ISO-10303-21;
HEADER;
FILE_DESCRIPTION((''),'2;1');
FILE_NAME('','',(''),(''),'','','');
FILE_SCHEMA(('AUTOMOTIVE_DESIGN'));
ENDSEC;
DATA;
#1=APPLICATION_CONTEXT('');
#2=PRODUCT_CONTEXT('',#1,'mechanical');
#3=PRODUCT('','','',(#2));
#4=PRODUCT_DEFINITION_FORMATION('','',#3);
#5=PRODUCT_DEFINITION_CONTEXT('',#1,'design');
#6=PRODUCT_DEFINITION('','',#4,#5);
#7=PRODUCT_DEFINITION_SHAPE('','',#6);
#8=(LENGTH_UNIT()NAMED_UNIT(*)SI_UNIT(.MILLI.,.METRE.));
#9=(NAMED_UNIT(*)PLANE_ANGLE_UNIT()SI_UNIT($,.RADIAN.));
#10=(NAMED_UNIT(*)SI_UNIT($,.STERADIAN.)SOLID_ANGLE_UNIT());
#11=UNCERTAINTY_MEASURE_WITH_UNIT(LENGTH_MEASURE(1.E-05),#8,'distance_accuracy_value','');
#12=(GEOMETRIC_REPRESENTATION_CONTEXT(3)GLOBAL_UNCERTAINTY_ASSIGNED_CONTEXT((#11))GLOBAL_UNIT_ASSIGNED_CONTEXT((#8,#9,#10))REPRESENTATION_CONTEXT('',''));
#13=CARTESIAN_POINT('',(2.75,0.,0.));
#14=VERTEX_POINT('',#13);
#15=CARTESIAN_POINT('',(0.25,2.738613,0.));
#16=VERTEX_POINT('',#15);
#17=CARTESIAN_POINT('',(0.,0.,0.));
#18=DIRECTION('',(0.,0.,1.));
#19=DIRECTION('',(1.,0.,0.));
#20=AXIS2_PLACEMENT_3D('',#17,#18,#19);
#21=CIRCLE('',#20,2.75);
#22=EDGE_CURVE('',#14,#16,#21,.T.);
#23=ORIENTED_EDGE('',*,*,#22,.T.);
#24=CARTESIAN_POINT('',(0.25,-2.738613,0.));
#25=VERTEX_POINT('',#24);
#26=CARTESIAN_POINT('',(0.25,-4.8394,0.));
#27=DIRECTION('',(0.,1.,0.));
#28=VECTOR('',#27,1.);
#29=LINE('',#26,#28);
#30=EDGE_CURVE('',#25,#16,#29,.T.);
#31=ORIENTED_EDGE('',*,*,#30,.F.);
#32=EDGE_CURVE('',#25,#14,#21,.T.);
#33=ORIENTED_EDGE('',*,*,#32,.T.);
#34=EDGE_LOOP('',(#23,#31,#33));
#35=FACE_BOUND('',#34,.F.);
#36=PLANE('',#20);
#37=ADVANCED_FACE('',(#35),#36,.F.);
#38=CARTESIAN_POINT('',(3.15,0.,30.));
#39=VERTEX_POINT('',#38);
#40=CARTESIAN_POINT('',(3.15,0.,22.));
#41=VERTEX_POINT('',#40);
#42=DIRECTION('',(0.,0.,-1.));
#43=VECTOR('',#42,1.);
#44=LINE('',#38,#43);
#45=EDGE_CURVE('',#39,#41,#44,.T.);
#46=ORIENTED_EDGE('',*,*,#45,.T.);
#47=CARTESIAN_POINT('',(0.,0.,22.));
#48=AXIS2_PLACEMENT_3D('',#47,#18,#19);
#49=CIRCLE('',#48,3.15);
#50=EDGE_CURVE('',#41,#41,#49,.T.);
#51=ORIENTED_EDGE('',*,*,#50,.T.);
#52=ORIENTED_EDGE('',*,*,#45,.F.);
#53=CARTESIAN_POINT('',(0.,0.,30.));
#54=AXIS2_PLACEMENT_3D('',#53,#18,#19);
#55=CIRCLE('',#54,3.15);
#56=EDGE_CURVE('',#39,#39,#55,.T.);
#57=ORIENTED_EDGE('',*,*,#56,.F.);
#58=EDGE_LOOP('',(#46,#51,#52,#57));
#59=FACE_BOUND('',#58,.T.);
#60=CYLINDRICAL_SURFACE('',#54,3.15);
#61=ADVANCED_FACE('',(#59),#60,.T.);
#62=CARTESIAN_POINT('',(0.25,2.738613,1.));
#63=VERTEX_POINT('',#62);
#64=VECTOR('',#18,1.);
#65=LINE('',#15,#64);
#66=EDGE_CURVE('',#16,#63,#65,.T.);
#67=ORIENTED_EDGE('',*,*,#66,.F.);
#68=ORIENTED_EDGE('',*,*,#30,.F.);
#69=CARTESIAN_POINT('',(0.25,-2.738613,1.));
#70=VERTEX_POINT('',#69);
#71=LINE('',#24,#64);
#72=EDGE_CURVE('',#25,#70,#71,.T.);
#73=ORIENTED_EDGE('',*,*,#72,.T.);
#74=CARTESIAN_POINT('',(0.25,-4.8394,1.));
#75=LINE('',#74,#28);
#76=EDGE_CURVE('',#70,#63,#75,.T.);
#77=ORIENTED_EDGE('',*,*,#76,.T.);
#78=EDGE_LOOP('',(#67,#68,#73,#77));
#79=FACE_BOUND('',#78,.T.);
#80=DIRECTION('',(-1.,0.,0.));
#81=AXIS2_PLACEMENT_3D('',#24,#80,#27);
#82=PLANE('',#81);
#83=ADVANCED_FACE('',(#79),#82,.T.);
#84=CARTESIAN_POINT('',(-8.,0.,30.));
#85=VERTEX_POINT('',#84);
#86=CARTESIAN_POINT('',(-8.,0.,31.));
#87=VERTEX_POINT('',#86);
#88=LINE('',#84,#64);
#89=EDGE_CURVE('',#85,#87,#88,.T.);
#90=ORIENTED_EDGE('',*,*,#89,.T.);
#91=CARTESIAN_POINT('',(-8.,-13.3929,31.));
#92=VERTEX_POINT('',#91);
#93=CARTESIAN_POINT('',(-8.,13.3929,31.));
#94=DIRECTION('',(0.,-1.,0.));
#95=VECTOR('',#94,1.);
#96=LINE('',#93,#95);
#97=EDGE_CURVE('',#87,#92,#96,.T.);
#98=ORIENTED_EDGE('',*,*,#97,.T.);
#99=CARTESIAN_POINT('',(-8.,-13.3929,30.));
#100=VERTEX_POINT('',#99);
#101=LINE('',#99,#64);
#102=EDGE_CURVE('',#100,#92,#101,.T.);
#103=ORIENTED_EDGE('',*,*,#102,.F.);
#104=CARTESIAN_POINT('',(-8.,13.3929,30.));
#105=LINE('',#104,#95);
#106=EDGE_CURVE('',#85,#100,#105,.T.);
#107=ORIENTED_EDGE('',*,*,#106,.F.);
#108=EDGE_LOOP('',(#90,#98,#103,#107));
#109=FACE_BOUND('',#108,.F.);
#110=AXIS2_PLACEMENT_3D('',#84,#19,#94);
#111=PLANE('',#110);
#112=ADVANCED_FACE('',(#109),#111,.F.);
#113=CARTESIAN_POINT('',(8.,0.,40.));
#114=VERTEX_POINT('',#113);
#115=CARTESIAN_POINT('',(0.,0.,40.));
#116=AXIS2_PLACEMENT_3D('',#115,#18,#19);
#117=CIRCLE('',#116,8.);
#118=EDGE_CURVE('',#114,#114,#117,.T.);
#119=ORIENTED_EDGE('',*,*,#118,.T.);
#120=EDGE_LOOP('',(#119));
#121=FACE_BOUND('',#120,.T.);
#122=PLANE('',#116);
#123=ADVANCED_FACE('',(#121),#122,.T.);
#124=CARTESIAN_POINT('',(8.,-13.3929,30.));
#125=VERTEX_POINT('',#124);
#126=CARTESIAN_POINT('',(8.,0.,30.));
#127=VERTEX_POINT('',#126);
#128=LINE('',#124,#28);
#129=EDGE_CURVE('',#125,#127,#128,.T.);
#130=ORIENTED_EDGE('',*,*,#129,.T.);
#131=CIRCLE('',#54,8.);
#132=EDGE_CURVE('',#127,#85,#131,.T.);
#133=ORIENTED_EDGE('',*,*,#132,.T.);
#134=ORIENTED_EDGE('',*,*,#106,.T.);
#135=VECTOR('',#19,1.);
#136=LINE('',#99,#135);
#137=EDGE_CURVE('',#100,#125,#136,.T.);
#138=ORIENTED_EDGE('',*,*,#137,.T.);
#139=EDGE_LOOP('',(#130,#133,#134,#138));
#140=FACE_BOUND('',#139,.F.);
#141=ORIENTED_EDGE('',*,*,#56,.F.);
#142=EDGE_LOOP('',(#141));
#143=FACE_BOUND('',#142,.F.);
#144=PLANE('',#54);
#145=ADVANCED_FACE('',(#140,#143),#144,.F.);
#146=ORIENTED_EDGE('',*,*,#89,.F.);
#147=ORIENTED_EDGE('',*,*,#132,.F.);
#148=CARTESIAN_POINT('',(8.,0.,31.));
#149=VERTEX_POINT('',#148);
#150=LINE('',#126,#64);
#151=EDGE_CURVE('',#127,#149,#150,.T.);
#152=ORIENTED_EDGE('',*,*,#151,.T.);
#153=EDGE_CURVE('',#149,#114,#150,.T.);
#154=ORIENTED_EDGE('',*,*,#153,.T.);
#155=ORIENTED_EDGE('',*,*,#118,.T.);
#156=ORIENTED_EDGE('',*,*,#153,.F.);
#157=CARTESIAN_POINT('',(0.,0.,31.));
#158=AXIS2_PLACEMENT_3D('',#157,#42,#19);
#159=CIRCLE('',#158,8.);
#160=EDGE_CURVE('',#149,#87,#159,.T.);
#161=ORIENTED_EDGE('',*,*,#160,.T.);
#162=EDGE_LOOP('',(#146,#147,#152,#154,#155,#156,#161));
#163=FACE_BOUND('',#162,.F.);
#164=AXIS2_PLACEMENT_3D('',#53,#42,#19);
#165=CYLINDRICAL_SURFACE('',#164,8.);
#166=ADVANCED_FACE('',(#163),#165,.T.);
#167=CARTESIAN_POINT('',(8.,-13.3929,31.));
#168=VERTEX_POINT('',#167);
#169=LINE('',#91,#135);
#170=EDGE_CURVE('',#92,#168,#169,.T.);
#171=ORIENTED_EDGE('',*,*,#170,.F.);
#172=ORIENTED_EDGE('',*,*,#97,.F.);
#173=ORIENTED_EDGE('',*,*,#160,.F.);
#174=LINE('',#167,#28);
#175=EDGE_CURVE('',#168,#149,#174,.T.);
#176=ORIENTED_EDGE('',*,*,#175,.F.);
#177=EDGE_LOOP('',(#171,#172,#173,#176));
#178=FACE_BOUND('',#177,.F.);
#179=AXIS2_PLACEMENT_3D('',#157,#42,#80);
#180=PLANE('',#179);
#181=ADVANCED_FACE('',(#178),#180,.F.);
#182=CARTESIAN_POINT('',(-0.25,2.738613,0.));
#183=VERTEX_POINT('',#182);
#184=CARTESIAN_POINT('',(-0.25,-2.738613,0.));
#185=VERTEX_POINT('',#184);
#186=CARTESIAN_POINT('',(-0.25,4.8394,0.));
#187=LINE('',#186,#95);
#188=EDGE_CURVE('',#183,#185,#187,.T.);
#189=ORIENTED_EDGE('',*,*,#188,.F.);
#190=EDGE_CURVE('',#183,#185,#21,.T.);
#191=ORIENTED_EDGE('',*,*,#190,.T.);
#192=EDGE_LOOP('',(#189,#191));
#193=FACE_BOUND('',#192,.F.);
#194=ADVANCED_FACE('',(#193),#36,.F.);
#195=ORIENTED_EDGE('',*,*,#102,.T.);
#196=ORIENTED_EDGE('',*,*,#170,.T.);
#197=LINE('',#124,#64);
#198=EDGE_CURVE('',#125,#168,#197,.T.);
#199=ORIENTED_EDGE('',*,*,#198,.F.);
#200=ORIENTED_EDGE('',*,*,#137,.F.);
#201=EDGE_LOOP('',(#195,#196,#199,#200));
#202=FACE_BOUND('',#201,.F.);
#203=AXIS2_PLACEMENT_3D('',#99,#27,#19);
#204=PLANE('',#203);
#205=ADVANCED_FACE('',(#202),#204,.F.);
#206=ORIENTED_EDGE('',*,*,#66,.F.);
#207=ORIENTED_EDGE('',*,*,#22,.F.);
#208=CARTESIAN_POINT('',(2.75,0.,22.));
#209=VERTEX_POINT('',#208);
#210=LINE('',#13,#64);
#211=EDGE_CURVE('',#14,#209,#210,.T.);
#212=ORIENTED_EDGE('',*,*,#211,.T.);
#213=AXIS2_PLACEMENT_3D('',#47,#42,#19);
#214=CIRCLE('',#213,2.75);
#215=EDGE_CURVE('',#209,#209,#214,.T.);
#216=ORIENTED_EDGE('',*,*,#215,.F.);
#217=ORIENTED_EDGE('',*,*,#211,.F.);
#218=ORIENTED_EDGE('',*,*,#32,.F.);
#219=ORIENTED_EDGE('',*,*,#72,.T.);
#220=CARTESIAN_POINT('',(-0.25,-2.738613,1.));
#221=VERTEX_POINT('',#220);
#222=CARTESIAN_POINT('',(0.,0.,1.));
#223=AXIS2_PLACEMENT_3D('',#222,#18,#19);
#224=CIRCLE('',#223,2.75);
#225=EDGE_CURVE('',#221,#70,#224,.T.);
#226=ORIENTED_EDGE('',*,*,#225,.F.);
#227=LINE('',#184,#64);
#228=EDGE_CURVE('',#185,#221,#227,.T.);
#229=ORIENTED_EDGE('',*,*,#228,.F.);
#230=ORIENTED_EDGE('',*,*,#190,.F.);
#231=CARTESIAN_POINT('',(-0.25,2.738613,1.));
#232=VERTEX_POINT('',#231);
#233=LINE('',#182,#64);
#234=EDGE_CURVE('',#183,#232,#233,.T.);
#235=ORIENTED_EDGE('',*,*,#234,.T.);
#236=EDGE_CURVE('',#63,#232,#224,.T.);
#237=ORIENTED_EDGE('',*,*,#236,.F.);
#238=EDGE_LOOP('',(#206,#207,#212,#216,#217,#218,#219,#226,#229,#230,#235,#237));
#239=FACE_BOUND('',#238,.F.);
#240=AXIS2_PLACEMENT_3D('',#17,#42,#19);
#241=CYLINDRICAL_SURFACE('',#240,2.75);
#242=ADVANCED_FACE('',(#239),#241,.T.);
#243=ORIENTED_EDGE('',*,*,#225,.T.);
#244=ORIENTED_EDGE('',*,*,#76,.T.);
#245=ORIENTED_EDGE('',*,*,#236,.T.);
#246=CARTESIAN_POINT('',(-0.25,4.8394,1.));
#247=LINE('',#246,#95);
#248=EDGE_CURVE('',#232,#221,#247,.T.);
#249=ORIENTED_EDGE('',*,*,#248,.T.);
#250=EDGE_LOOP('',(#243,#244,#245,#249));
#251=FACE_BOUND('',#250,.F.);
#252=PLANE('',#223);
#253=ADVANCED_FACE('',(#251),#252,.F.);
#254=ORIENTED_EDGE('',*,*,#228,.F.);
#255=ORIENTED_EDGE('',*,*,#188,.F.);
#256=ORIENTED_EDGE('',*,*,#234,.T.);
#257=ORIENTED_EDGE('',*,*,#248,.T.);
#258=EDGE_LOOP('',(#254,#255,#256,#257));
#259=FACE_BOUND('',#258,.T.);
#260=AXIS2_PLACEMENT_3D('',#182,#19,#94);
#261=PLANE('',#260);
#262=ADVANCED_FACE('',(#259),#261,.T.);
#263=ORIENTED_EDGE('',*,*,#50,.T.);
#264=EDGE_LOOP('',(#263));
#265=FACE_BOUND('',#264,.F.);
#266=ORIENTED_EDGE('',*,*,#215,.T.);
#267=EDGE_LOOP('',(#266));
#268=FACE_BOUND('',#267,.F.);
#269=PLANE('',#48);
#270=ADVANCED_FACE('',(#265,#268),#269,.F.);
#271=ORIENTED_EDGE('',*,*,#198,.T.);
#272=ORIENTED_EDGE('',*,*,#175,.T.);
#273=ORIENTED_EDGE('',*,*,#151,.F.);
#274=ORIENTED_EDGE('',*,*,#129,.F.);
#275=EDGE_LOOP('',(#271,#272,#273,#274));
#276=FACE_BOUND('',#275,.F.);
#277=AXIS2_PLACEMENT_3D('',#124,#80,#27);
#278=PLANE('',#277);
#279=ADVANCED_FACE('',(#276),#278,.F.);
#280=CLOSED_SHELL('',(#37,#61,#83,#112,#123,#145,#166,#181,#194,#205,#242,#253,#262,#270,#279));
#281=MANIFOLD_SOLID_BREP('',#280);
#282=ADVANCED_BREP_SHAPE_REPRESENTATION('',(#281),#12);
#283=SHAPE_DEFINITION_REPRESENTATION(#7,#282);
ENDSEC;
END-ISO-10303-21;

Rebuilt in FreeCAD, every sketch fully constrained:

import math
import FreeCAD as App
import Part
import Sketcher

V = App.Vector


def add_polygon(sketch, points):
    """Adds a closed chain of lines whose ends are joined by coincident constraints."""
    first, n = sketch.GeometryCount, len(points)
    for a, b in zip(points, points[1:] + points[:1]):
        sketch.addGeometry(Part.LineSegment(App.Vector(*a, 0), App.Vector(*b, 0)), False)
    for i in range(n):
        sketch.addConstraint(Sketcher.Constraint("Coincident", first + i, 2, first + (i + 1) % n, 1))

doc = App.newDocument("Part")
body = doc.addObject("PartDesign::Body", "Body")

sketch1 = body.newObject("Sketcher::SketchObject", "Sketch")
sketch1.AttachmentSupport = (doc.getObject("XY_Plane"), [""])
sketch1.MapMode = "FlatFace"
sketch1.addGeometry(Part.Circle(V(0, 0, 0), V(0, 0, 1), 2.75), False)
sketch1.addConstraint(Sketcher.Constraint("Coincident", 0, 3, -1, 1))
sketch1.addConstraint(Sketcher.Constraint("Diameter", 0, 5.5))
pad1 = body.newObject("PartDesign::Pad", "Pad")
pad1.Profile = sketch1
pad1.Length = 30

sketch2 = body.newObject("Sketcher::SketchObject", "Sketch001")
sketch2.AttachmentSupport = (doc.getObject("XY_Plane"), [""])
sketch2.MapMode = "FlatFace"
sketch2.addGeometry(Part.LineSegment(V(0.25, -2.738613, 0), V(0.25, 2.738613, 0)), False)
sketch2.addGeometry(Part.ArcOfCircle(Part.Circle(V(0, 0, 0), V(0, 0, 1), 2.75), math.radians(84.784091), math.radians(95.215909)), False)
sketch2.addGeometry(Part.LineSegment(V(-0.25, 2.738613, 0), V(-0.25, -2.738613, 0)), False)
sketch2.addGeometry(Part.ArcOfCircle(Part.Circle(V(0, 0, 0), V(0, 0, 1), 2.75), math.radians(-95.215909), math.radians(-84.784091)), False)
sketch2.addConstraint(Sketcher.Constraint("Coincident", 0, 2, 1, 1))
sketch2.addConstraint(Sketcher.Constraint("Coincident", 1, 2, 2, 1))
sketch2.addConstraint(Sketcher.Constraint("Coincident", 2, 2, 3, 1))
sketch2.addConstraint(Sketcher.Constraint("Coincident", 3, 2, 0, 1))
sketch2.addConstraint(Sketcher.Constraint("Vertical", 0))
sketch2.addConstraint(Sketcher.Constraint("Vertical", 2))
sketch2.addConstraint(Sketcher.Constraint("Coincident", 1, 3, -1, 1))
sketch2.addConstraint(Sketcher.Constraint("Coincident", 3, 3, -1, 1))
sketch2.addConstraint(Sketcher.Constraint("Equal", 1, 3))
sketch2.addConstraint(Sketcher.Constraint("Horizontal", 0, 2, 1, 2))
sketch2.addConstraint(Sketcher.Constraint("Radius", 1, 2.75))
sketch2.addConstraint(Sketcher.Constraint("DistanceX", 1, 2, 0, 2, 0.5))
pocket1 = body.newObject("PartDesign::Pocket", "Pocket")
pocket1.Profile = sketch2
pocket1.Length = 1
pocket1.Reversed = True

sketch3 = body.newObject("Sketcher::SketchObject", "Sketch002")
sketch3.AttachmentSupport = (doc.getObject("XY_Plane"), [""])
sketch3.MapMode = "FlatFace"
sketch3.AttachmentOffset = App.Placement(V(0, 0, 30), App.Rotation())
sketch3.addGeometry(Part.Circle(V(0, 0, 0), V(0, 0, 1), 3.15), False)
sketch3.addConstraint(Sketcher.Constraint("Coincident", 0, 3, -1, 1))
sketch3.addConstraint(Sketcher.Constraint("Diameter", 0, 6.3))
pad2 = body.newObject("PartDesign::Pad", "Pad001")
pad2.Profile = sketch3
pad2.Length = 8
pad2.Reversed = True

sketch4 = body.newObject("Sketcher::SketchObject", "Sketch003")
sketch4.AttachmentSupport = (doc.getObject("XY_Plane"), [""])
sketch4.MapMode = "FlatFace"
sketch4.AttachmentOffset = App.Placement(V(0, 0, 30), App.Rotation())
sketch4.addGeometry(Part.Circle(V(0, 0, 0), V(0, 0, 1), 8), False)
sketch4.addConstraint(Sketcher.Constraint("Coincident", 0, 3, -1, 1))
sketch4.addConstraint(Sketcher.Constraint("Diameter", 0, 16.0))
pad3 = body.newObject("PartDesign::Pad", "Pad002")
pad3.Profile = sketch4
pad3.Length = 10

sketch5 = body.newObject("Sketcher::SketchObject", "Sketch004")
sketch5.AttachmentSupport = (doc.getObject("XY_Plane"), [""])
sketch5.MapMode = "FlatFace"
sketch5.AttachmentOffset = App.Placement(V(0, 0, 30), App.Rotation())
add_polygon(sketch5, [(-8, -13.3929), (-8, 0), (8, 0), (8, -13.3929)])
sketch5.addConstraint(Sketcher.Constraint("Vertical", 0))
sketch5.addConstraint(Sketcher.Constraint("Horizontal", 1))
sketch5.addConstraint(Sketcher.Constraint("Vertical", 2))
sketch5.addConstraint(Sketcher.Constraint("Horizontal", 3))
sketch5.addConstraint(Sketcher.Constraint("Symmetric", 0, 2, 1, 2, -1, 1))
sketch5.addConstraint(Sketcher.Constraint("DistanceX", 1, 1, 1, 2, 16.0))
sketch5.addConstraint(Sketcher.Constraint("DistanceY", 0, 1, 0, 2, 13.393))
pad4 = body.newObject("PartDesign::Pad", "Pad003")
pad4.Profile = sketch5
pad4.Length = 1

doc.recompute()
